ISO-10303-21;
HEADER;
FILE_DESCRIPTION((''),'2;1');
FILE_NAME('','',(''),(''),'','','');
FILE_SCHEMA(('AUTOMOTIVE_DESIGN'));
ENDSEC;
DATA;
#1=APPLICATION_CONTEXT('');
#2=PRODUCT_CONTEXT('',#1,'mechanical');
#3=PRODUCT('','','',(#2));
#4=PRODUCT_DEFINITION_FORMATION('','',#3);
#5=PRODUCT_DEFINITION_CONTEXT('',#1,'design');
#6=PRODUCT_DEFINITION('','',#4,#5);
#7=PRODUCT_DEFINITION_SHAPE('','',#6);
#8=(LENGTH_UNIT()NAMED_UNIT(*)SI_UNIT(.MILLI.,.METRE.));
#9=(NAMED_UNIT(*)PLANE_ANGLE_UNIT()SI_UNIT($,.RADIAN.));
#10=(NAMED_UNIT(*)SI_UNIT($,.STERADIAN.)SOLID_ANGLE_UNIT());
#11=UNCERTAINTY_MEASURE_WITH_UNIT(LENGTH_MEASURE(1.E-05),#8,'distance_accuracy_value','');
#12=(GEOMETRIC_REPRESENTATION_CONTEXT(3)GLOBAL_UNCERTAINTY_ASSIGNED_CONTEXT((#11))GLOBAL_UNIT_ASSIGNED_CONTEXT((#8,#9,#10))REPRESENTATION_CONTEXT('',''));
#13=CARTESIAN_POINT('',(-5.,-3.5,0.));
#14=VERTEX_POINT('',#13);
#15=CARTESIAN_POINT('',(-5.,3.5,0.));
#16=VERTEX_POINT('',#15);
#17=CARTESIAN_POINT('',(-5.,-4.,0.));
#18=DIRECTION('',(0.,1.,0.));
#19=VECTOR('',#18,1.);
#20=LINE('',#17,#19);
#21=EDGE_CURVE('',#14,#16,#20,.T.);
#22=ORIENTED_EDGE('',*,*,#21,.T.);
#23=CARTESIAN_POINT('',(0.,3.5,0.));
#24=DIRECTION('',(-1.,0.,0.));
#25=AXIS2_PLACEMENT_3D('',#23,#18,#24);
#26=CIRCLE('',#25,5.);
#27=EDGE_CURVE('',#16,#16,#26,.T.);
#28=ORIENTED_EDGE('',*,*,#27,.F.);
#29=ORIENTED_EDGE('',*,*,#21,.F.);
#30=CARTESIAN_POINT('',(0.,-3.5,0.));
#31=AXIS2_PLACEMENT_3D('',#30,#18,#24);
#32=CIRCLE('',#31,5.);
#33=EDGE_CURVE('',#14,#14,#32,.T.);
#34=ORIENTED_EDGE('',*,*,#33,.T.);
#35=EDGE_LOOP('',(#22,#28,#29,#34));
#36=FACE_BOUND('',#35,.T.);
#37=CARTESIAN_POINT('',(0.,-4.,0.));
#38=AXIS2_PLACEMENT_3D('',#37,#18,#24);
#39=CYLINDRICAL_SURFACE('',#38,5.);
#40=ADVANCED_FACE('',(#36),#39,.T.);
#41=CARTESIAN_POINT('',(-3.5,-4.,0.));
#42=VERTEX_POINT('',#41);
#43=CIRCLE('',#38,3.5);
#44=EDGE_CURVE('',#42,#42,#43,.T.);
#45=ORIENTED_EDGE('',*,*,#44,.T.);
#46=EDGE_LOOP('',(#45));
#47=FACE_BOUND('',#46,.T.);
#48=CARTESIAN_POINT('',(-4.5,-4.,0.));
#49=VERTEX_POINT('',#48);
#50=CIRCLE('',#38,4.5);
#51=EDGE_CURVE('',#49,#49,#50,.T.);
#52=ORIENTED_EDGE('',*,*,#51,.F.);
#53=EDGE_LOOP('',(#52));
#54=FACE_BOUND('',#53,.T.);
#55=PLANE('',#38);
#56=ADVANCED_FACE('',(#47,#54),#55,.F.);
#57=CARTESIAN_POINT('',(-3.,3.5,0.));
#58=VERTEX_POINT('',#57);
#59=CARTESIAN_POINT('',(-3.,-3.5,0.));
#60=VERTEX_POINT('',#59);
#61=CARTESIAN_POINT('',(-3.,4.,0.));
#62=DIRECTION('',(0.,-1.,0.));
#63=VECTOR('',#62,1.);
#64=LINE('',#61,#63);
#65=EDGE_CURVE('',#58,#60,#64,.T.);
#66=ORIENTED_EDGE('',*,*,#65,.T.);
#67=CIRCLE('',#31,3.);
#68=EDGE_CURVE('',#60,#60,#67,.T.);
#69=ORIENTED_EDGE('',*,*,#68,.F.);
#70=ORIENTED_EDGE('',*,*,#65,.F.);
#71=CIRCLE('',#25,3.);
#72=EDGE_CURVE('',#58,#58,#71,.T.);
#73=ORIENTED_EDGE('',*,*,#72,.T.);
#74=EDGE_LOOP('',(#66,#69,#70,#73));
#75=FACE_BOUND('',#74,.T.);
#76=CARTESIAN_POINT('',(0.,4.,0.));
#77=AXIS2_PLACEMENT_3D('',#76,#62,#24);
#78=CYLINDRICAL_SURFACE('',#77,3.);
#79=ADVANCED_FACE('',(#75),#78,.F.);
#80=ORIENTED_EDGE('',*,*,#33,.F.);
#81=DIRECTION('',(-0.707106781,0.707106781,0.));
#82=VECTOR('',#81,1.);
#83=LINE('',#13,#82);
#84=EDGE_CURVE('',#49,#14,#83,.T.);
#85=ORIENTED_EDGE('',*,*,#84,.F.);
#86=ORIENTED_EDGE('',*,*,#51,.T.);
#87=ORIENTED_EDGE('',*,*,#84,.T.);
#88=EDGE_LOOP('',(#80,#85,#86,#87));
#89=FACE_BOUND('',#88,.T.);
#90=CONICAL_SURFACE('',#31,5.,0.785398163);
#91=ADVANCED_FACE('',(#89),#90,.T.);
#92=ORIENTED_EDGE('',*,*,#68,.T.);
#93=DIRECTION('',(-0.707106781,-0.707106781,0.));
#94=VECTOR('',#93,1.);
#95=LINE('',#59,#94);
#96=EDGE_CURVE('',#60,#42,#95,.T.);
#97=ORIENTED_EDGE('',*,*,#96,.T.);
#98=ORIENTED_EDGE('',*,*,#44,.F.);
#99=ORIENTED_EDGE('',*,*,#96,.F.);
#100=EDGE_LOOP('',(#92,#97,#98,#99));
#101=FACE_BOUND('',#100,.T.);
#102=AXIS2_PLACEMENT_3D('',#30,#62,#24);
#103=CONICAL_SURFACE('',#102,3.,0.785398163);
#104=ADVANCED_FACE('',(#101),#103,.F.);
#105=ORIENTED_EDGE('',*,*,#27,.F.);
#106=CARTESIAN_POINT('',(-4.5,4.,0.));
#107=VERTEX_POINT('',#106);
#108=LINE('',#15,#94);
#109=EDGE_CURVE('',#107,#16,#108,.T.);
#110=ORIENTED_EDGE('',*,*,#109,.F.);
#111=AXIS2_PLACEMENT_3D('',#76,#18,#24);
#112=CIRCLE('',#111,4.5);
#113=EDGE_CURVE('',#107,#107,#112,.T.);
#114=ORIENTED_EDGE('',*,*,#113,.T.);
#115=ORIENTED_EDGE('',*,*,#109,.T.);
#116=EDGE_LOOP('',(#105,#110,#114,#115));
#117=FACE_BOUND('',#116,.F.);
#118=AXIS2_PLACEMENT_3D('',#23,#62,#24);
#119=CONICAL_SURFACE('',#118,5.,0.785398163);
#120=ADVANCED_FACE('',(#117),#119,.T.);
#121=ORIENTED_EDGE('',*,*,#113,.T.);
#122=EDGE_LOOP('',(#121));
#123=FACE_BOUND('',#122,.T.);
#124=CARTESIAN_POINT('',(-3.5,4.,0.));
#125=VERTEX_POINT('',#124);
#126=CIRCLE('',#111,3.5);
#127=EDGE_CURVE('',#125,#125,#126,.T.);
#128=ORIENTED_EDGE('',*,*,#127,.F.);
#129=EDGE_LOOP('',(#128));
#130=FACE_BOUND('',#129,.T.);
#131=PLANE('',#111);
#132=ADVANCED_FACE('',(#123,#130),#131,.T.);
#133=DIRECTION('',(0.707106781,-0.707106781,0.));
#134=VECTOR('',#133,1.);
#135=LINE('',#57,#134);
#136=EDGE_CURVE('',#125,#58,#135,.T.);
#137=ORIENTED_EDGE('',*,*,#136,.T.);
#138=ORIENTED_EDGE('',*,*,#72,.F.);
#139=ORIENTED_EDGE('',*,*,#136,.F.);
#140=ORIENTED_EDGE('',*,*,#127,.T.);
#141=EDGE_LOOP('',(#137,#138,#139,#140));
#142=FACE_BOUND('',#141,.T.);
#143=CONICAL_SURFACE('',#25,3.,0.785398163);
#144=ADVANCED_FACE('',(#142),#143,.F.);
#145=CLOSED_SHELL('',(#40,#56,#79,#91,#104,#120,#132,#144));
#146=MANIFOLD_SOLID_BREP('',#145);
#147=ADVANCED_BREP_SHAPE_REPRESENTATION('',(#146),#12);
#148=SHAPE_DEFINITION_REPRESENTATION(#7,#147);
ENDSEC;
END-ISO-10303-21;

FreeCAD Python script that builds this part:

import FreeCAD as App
import Part
import Sketcher
from FreeCAD import Vector


def edges_at(feature, points):
    """Names of the edges that pass closest to the given points."""
    edges = feature.Shape.Edges
    near = lambda p: min(range(len(edges)), key=lambda i: edges[i].distToShape(Part.Vertex(*p))[0])
    return sorted({f"Edge{near(p) + 1}" for p in points})

doc = App.newDocument("Part")
body = doc.addObject("PartDesign::Body", "Body")

# Sketch on XY plane
sketch1 = body.newObject("Sketcher::SketchObject", "Sketch")
sketch1.AttachmentSupport = (doc.getObject("XY_Plane"), [""])
sketch1.MapMode = "FlatFace"
sketch1.addGeometry([
    Part.LineSegment(Vector(-3, 4, 0), Vector(-5, 4, 0)),
    Part.LineSegment(Vector(-5, 4, 0), Vector(-5, -4, 0)),
    Part.LineSegment(Vector(-5, -4, 0), Vector(-3, -4, 0)),
    Part.LineSegment(Vector(-3, -4, 0), Vector(-3, 4, 0)),
], False)
sketch1.addConstraint([
    Sketcher.Constraint("Coincident", 0, 2, 1, 1),
    Sketcher.Constraint("Coincident", 1, 2, 2, 1),
    Sketcher.Constraint("Coincident", 2, 2, 3, 1),
    Sketcher.Constraint("Coincident", 3, 2, 0, 1),
    Sketcher.Constraint("Horizontal", 0),
    Sketcher.Constraint("Vertical", 1),
    Sketcher.Constraint("Horizontal", 2),
    Sketcher.Constraint("Vertical", 3),
    Sketcher.Constraint("DistanceY", 1, 2, 1, 1, 8.0),
    Sketcher.Constraint("DistanceX", 0, 2, 0, 1, 2.0),
    Sketcher.Constraint("DistanceX", 0, 2, -1, 1, 5.0),
    Sketcher.Constraint("DistanceY", -1, 1, 0, 2, 4.0),
])
revolution = body.newObject("PartDesign::Revolution", "Revolution")
revolution.Profile = sketch1
revolution.ReferenceAxis = (sketch1, ["V_Axis"])
revolution.Angle = 360
doc.recompute()

chamfer = body.newObject("PartDesign::Chamfer", "Chamfer")
chamfer.Base = (revolution, edges_at(revolution, [
    (5, -4, 0),
    (3, -4, 0),
    (3, 4, 0),
    (5, 4, 0),
]))
chamfer.Size = 0.5

doc.recompute()
